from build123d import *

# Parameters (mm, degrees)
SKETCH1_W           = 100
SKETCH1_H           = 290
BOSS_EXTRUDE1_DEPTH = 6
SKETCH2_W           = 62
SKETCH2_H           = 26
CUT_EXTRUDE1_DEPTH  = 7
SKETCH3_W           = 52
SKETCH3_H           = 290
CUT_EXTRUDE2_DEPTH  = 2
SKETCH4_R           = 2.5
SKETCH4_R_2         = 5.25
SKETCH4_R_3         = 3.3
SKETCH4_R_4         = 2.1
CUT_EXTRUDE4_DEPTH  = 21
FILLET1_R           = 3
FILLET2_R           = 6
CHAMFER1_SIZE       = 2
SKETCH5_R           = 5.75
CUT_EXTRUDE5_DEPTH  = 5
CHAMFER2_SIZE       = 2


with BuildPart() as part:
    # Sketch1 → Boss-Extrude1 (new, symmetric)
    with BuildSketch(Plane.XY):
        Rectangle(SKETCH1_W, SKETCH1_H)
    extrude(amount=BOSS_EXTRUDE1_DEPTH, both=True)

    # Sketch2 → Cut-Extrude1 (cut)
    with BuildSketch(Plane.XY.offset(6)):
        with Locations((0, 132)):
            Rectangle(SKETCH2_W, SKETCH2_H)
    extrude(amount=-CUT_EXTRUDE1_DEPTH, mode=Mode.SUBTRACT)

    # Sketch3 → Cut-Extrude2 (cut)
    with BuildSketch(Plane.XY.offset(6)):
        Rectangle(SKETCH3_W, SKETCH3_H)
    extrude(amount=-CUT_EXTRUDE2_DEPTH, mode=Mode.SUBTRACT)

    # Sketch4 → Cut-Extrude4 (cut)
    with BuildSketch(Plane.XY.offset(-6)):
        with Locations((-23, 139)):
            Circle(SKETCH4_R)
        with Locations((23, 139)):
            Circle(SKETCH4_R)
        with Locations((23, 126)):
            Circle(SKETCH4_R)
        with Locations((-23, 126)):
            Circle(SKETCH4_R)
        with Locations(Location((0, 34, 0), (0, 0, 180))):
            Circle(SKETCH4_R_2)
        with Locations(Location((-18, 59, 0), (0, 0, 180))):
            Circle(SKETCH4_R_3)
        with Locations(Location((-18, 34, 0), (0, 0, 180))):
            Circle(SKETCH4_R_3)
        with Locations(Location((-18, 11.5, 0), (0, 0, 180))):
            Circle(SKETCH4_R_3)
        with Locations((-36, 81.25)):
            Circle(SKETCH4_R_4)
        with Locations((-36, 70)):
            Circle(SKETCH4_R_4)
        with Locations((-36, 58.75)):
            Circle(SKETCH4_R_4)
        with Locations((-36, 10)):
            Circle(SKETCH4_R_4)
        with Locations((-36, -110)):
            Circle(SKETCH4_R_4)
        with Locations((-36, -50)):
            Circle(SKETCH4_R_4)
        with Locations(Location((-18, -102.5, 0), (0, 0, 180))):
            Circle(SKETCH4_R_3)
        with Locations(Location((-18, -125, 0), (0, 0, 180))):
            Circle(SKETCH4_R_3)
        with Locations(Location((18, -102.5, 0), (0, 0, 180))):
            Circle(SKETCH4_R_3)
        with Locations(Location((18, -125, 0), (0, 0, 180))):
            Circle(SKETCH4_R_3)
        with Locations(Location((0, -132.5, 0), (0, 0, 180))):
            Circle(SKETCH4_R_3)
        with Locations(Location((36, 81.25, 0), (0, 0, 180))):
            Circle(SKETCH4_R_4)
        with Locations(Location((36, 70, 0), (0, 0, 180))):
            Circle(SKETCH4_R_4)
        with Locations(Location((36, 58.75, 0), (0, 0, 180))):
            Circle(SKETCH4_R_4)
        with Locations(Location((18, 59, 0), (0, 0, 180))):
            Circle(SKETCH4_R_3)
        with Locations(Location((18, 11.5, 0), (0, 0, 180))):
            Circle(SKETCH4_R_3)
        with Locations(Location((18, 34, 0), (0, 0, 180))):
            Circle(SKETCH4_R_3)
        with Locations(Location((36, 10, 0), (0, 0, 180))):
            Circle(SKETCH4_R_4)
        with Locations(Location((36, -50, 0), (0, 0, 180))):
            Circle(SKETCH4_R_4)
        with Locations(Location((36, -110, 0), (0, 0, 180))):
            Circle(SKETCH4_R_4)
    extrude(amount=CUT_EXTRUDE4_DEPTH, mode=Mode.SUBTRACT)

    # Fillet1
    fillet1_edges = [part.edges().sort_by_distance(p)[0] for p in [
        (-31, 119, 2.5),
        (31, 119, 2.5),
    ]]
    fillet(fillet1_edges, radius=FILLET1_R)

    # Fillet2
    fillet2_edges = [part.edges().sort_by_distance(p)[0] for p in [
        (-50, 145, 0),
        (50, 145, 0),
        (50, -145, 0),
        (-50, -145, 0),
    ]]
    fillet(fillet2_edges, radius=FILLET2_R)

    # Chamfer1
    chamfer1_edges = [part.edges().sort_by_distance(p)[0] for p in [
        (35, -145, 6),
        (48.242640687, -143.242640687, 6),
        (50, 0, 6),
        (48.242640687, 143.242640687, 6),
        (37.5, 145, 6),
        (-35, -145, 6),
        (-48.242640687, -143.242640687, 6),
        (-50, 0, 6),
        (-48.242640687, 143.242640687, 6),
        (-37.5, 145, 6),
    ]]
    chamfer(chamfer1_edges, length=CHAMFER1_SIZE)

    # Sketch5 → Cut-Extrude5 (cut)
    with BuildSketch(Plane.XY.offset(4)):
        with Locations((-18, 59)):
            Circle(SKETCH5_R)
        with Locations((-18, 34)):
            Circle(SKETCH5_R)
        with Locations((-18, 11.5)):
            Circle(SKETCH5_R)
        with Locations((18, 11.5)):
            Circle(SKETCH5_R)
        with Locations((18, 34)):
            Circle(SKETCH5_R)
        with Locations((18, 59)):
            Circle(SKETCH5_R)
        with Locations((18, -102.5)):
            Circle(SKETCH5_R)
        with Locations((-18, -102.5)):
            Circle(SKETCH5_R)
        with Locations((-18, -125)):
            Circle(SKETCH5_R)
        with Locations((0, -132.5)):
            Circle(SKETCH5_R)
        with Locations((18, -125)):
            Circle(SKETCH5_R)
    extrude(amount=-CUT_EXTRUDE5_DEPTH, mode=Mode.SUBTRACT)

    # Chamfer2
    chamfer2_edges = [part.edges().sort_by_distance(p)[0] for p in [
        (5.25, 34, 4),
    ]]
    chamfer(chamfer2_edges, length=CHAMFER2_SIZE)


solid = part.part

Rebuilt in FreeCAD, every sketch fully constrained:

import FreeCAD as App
import Part
import Sketcher


def edges_at(feature, points):
    """Names of the edges that pass closest to the given points."""
    edges = feature.Shape.Edges
    near = lambda p: min(range(len(edges)), key=lambda i: edges[i].distToShape(Part.Vertex(*p))[0])
    return sorted({f"Edge{near(p) + 1}" for p in points})

doc = App.newDocument("Part")
params = doc.addObject("Spreadsheet::Sheet", "Params")
for row, (alias, value) in enumerate([
    ("sketch1_width", "100 mm"),
    ("sketch1_height", "290 mm"),
    ("pad1_length", "12 mm"),
    ("sketch2_width", "62 mm"),
    ("sketch2_height", "26 mm"),
    ("pocket1_length", "7 mm"),
    ("sketch3_width", "52 mm"),
    ("sketch3_height", "290 mm"),
    ("pocket2_length", "2 mm"),
    ("sketch4_diameter", "5 mm"),
    ("sketch4_diameter2", "10.5 mm"),
    ("sketch4_diameter3", "6.6 mm"),
    ("sketch4_diameter4", "4.2 mm"),
    ("pocket3_length", "21 mm"),
    ("fillet_radius", "3 mm"),
    ("fillet2_radius", "6 mm"),
    ("chamfer_size", "2 mm"),
    ("sketch5_diameter", "11.5 mm"),
    ("pocket4_length", "5 mm"),
    ("chamfer2_size", "2 mm"),
], start=1):
    params.set(f"A{row}", alias)
    params.set(f"B{row}", "=" + value)
    params.setAlias(f"B{row}", alias)

body = doc.addObject("PartDesign::Body", "Body")

# Sketch on XY plane
sketch1 = doc.addObject("Sketcher::SketchObject", "Sketch")
body.addObject(sketch1)
sketch1.AttachmentSupport = (doc.XY_Plane, [""])
sketch1.MapMode = "FlatFace"
sketch1.addGeometry([
    Part.LineSegment(App.Vector(-50, 145, 0), App.Vector(-50, -145, 0)),
    Part.LineSegment(App.Vector(-50, -145, 0), App.Vector(50, -145, 0)),
    Part.LineSegment(App.Vector(50, -145, 0), App.Vector(50, 145, 0)),
    Part.LineSegment(App.Vector(50, 145, 0), App.Vector(-50, 145, 0)),
], False)
sketch1.addConstraint([
    Sketcher.Constraint("Coincident", 0, 2, 1, 1),
    Sketcher.Constraint("Coincident", 1, 2, 2, 1),
    Sketcher.Constraint("Coincident", 2, 2, 3, 1),
    Sketcher.Constraint("Coincident", 3, 2, 0, 1),
    Sketcher.Constraint("Vertical", 0),
    Sketcher.Constraint("Horizontal", 1),
    Sketcher.Constraint("Vertical", 2),
    Sketcher.Constraint("Horizontal", 3),
    Sketcher.Constraint("Symmetric", 0, 2, 2, 2, -1, 1),
    Sketcher.Constraint("DistanceX", 1, 1, 1, 2, 100.0),
    Sketcher.Constraint("DistanceY", 0, 2, 0, 1, 290.0),
])
sketch1.setExpression("Constraints[9]", "Params.sketch1_width")
sketch1.setExpression("Constraints[10]", "Params.sketch1_height")
pad1 = doc.addObject("PartDesign::Pad", "Pad")
body.addObject(pad1)
pad1.Profile = sketch1
pad1.setExpression("Length", "Params.pad1_length")
pad1.Midplane = True

# Sketch on XY plane
sketch2 = doc.addObject("Sketcher::SketchObject", "Sketch001")
body.addObject(sketch2)
sketch2.AttachmentSupport = (doc.XY_Plane, [""])
sketch2.MapMode = "FlatFace"
sketch2.AttachmentOffset = App.Placement(App.Vector(0, 0, 6), App.Rotation())
sketch2.addGeometry([
    Part.LineSegment(App.Vector(-31, 145, 0), App.Vector(-31, 119, 0)),
    Part.LineSegment(App.Vector(-31, 119, 0), App.Vector(31, 119, 0)),
    Part.LineSegment(App.Vector(31, 119, 0), App.Vector(31, 145, 0)),
    Part.LineSegment(App.Vector(31, 145, 0), App.Vector(-31, 145, 0)),
], False)
sketch2.addConstraint([
    Sketcher.Constraint("Coincident", 0, 2, 1, 1),
    Sketcher.Constraint("Coincident", 1, 2, 2, 1),
    Sketcher.Constraint("Coincident", 2, 2, 3, 1),
    Sketcher.Constraint("Coincident", 3, 2, 0, 1),
    Sketcher.Constraint("Vertical", 0),
    Sketcher.Constraint("Horizontal", 1),
    Sketcher.Constraint("Vertical", 2),
    Sketcher.Constraint("Horizontal", 3),
    Sketcher.Constraint("DistanceX", 1, 1, 1, 2, 62.0),
    Sketcher.Constraint("DistanceY", 0, 2, 0, 1, 26.0),
    Sketcher.Constraint("DistanceX", 0, 2, -1, 1, 31.0),
    Sketcher.Constraint("DistanceY", -1, 1, 0, 2, 119.0),
])
sketch2.setExpression("Constraints[8]", "Params.sketch2_width")
sketch2.setExpression("Constraints[9]", "Params.sketch2_height")
pocket1 = doc.addObject("PartDesign::Pocket", "Pocket")
body.addObject(pocket1)
pocket1.Profile = sketch2
pocket1.setExpression("Length", "Params.pocket1_length")

# Sketch on XY plane
sketch3 = doc.addObject("Sketcher::SketchObject", "Sketch002")
body.addObject(sketch3)
sketch3.AttachmentSupport = (doc.XY_Plane, [""])
sketch3.MapMode = "FlatFace"
sketch3.AttachmentOffset = App.Placement(App.Vector(0, 0, 6), App.Rotation())
sketch3.addGeometry([
    Part.LineSegment(App.Vector(-26, 145, 0), App.Vector(-26, -145, 0)),
    Part.LineSegment(App.Vector(-26, -145, 0), App.Vector(26, -145, 0)),
    Part.LineSegment(App.Vector(26, -145, 0), App.Vector(26, 145, 0)),
    Part.LineSegment(App.Vector(26, 145, 0), App.Vector(-26, 145, 0)),
], False)
sketch3.addConstraint([
    Sketcher.Constraint("Coincident", 0, 2, 1, 1),
    Sketcher.Constraint("Coincident", 1, 2, 2, 1),
    Sketcher.Constraint("Coincident", 2, 2, 3, 1),
    Sketcher.Constraint("Coincident", 3, 2, 0, 1),
    Sketcher.Constraint("Vertical", 0),
    Sketcher.Constraint("Horizontal", 1),
    Sketcher.Constraint("Vertical", 2),
    Sketcher.Constraint("Horizontal", 3),
    Sketcher.Constraint("Symmetric", 0, 2, 2, 2, -1, 1),
    Sketcher.Constraint("DistanceX", 1, 1, 1, 2, 52.0),
    Sketcher.Constraint("DistanceY", 0, 2, 0, 1, 290.0),
])
sketch3.setExpression("Constraints[9]", "Params.sketch3_width")
sketch3.setExpression("Constraints[10]", "Params.sketch3_height")
pocket2 = doc.addObject("PartDesign::Pocket", "Pocket001")
body.addObject(pocket2)
pocket2.Profile = sketch3
pocket2.setExpression("Length", "Params.pocket2_length")

# Sketch on XY plane
sketch4 = doc.addObject("Sketcher::SketchObject", "Sketch003")
body.addObject(sketch4)
sketch4.AttachmentSupport = (doc.XY_Plane, [""])
sketch4.MapMode = "FlatFace"
sketch4.AttachmentOffset = App.Placement(App.Vector(0, 0, -6), App.Rotation())
sketch4.addGeometry([
    Part.Circle(App.Vector(-23, 139, 0), App.Vector(0, 0, 1), 2.5),  # 0
    Part.Circle(App.Vector(23, 139, 0), App.Vector(0, 0, 1), 2.5),  # 1
    Part.Circle(App.Vector(23, 126, 0), App.Vector(0, 0, 1), 2.5),  # 2
    Part.Circle(App.Vector(-23, 126, 0), App.Vector(0, 0, 1), 2.5),  # 3
    Part.Circle(App.Vector(0, 34, 0), App.Vector(0, 0, 1), 5.2),  # 4
    Part.Circle(App.Vector(-18, 59, 0), App.Vector(0, 0, 1), 3.3),  # 5
    Part.Circle(App.Vector(-18, 34, 0), App.Vector(0, 0, 1), 3.3),  # 6
    Part.Circle(App.Vector(-18, 11.5, 0), App.Vector(0, 0, 1), 3.3),  # 7
    Part.Circle(App.Vector(-36, 81.2, 0), App.Vector(0, 0, 1), 2.1),  # 8
    Part.Circle(App.Vector(-36, 70, 0), App.Vector(0, 0, 1), 2.1),  # 9
    Part.Circle(App.Vector(-36, 58.8, 0), App.Vector(0, 0, 1), 2.1),  # 10
    Part.Circle(App.Vector(-36, 10, 0), App.Vector(0, 0, 1), 2.1),  # 11
    Part.Circle(App.Vector(-36, -110, 0), App.Vector(0, 0, 1), 2.1),  # 12
    Part.Circle(App.Vector(-36, -50, 0), App.Vector(0, 0, 1), 2.1),  # 13
    Part.Circle(App.Vector(-18, -102.5, 0), App.Vector(0, 0, 1), 3.3),  # 14
    Part.Circle(App.Vector(-18, -125, 0), App.Vector(0, 0, 1), 3.3),  # 15
    Part.Circle(App.Vector(18, -102.5, 0), App.Vector(0, 0, 1), 3.3),  # 16
    Part.Circle(App.Vector(18, -125, 0), App.Vector(0, 0, 1), 3.3),  # 17
    Part.Circle(App.Vector(0, -132.5, 0), App.Vector(0, 0, 1), 3.3),  # 18
    Part.Circle(App.Vector(36, 81.2, 0), App.Vector(0, 0, 1), 2.1),  # 19
    Part.Circle(App.Vector(36, 70, 0), App.Vector(0, 0, 1), 2.1),  # 20
    Part.Circle(App.Vector(36, 58.8, 0), App.Vector(0, 0, 1), 2.1),  # 21
    Part.Circle(App.Vector(18, 59, 0), App.Vector(0, 0, 1), 3.3),  # 22
    Part.Circle(App.Vector(18, 11.5, 0), App.Vector(0, 0, 1), 3.3),  # 23
    Part.Circle(App.Vector(18, 34, 0), App.Vector(0, 0, 1), 3.3),  # 24
    Part.Circle(App.Vector(36, 10, 0), App.Vector(0, 0, 1), 2.1),  # 25
    Part.Circle(App.Vector(36, -50, 0), App.Vector(0, 0, 1), 2.1),  # 26
    Part.Circle(App.Vector(36, -110, 0), App.Vector(0, 0, 1), 2.1),  # 27
], False)
sketch4.addConstraint([
    Sketcher.Constraint("Equal", 0, 1),
    Sketcher.Constraint("Equal", 1, 2),
    Sketcher.Constraint("Equal", 2, 3),
    Sketcher.Constraint("Equal", 5, 6),
    Sketcher.Constraint("Equal", 6, 7),
    Sketcher.Constraint("Equal", 8, 9),
    Sketcher.Constraint("Equal", 9, 10),
    Sketcher.Constraint("Equal", 10, 11),
    Sketcher.Constraint("Equal", 11, 12),
    Sketcher.Constraint("Equal", 12, 13),
    Sketcher.Constraint("Equal", 7, 14),
    Sketcher.Constraint("Equal", 14, 15),
    Sketcher.Constraint("Equal", 15, 16),
    Sketcher.Constraint("Equal", 16, 17),
    Sketcher.Constraint("Equal", 17, 18),
    Sketcher.Constraint("Equal", 13, 19),
    Sketcher.Constraint("Equal", 19, 20),
    Sketcher.Constraint("Equal", 20, 21),
    Sketcher.Constraint("Equal", 18, 22),
    Sketcher.Constraint("Equal", 22, 23),
    Sketcher.Constraint("Equal", 23, 24),
    Sketcher.Constraint("Equal", 21, 25),
    Sketcher.Constraint("Equal", 25, 26),
    Sketcher.Constraint("Equal", 26, 27),
    Sketcher.Constraint("Symmetric", 0, 3, 1, 3, -2),
    Sketcher.Constraint("Symmetric", 2, 3, 3, 3, -2),
    Sketcher.Constraint("Symmetric", 14, 3, 16, 3, -2),
    Sketcher.Constraint("Symmetric", 15, 3, 17, 3, -2),
    Sketcher.Constraint("Symmetric", 8, 3, 19, 3, -2),
    Sketcher.Constraint("Symmetric", 9, 3, 20, 3, -2),
    Sketcher.Constraint("Symmetric", 10, 3, 21, 3, -2),
    Sketcher.Constraint("Symmetric", 5, 3, 22, 3, -2),
    Sketcher.Constraint("Symmetric", 7, 3, 23, 3, -2),
    Sketcher.Constraint("Symmetric", 6, 3, 24, 3, -2),
    Sketcher.Constraint("Symmetric", 11, 3, 25, 3, -2),
    Sketcher.Constraint("Symmetric", 13, 3, 26, 3, -2),
    Sketcher.Constraint("Symmetric", 12, 3, 27, 3, -2),
    Sketcher.Constraint("PointOnObject", 4, 3, -2),
    Sketcher.Constraint("PointOnObject", 18, 3, -2),
    Sketcher.Constraint("Horizontal", 4, 3, 6, 3),
    Sketcher.Constraint("Vertical", 1, 3, 2, 3),
    Sketcher.Constraint("Vertical", 5, 3, 6, 3),
    Sketcher.Constraint("Vertical", 6, 3, 7, 3),
    Sketcher.Constraint("Vertical", 8, 3, 9, 3),
    Sketcher.Constraint("Vertical", 9, 3, 10, 3),
    Sketcher.Constraint("Vertical", 10, 3, 11, 3),
    Sketcher.Constraint("Vertical", 11, 3, 12, 3),
    Sketcher.Constraint("Vertical", 12, 3, 13, 3),
    Sketcher.Constraint("Vertical", 7, 3, 14, 3),
    Sketcher.Constraint("Vertical", 14, 3, 15, 3),
    Sketcher.Constraint("Diameter", 0, 5.0),
    Sketcher.Constraint("Diameter", 4, 10.5),
    Sketcher.Constraint("Diameter", 5, 6.6),
    Sketcher.Constraint("Diameter", 8, 4.2),
    Sketcher.Constraint("DistanceX", 0, 3, -1, 1, 23.0),
    Sketcher.Constraint("DistanceY", -1, 1, 0, 3, 139.0),
    Sketcher.Constraint("DistanceY", -1, 1, 2, 3, 126.0),
    Sketcher.Constraint("DistanceY", -1, 1, 4, 3, 34.0),
    Sketcher.Constraint("DistanceX", 5, 3, -1, 1, 18.0),
    Sketcher.Constraint("DistanceY", -1, 1, 5, 3, 59.0),
    Sketcher.Constraint("DistanceX", 8, 3, -1, 1, 36.0),
    Sketcher.Constraint("DistanceY", -1, 1, 9, 3, 70.0),
    Sketcher.Constraint("DistanceY", -1, 1, 11, 3, 10.0),
    Sketcher.Constraint("DistanceY", 12, 3, -1, 1, 110.0),
    Sketcher.Constraint("DistanceY", 13, 3, -1, 1, 50.0),
    Sketcher.Constraint("DistanceY", 15, 3, -1, 1, 125.0),
    Sketcher.Constraint("DistanceY", 14, 3, 7, 3, 114.0),
    Sketcher.Constraint("DistanceY", 18, 3, 14, 3, 30.0),
    Sketcher.Constraint("DistanceY", -1, 1, 7, 3, 11.5),
    Sketcher.Constraint("DistanceY", 10, 3, 8, 3, 22.5),
    Sketcher.Constraint("DistanceY", -1, 1, 8, 3, 81.25),
])
sketch4.setExpression("Constraints[50]", "Params.sketch4_diameter")
sketch4.setExpression("Constraints[51]", "Params.sketch4_diameter2")
sketch4.setExpression("Constraints[52]", "Params.sketch4_diameter3")
sketch4.setExpression("Constraints[53]", "Params.sketch4_diameter4")
pocket3 = doc.addObject("PartDesign::Pocket", "Pocket002")
body.addObject(pocket3)
pocket3.Profile = sketch4
pocket3.setExpression("Length", "Params.pocket3_length")
pocket3.Reversed = True
doc.recompute()

fillet = doc.addObject("PartDesign::Fillet", "Fillet")
body.addObject(fillet)
fillet.Base = (pocket3, edges_at(pocket3, [(-31, 119, 2.5), (31, 119, 2.5)]))
fillet.setExpression("Radius", "Params.fillet_radius")
doc.recompute()

fillet2 = doc.addObject("PartDesign::Fillet", "Fillet001")
body.addObject(fillet2)
fillet2.Base = (fillet, edges_at(fillet, [
    (-50, 145, 0),
    (50, 145, 0),
    (50, -145, 0),
    (-50, -145, 0),
]))
fillet2.setExpression("Radius", "Params.fillet2_radius")
doc.recompute()

chamfer = doc.addObject("PartDesign::Chamfer", "Chamfer")
body.addObject(chamfer)
chamfer.Base = (fillet2, edges_at(fillet2, [
    (35, -145, 6),
    (48.243, -143.243, 6),
    (50, 0, 6),
    (48.243, 143.243, 6),
    (37.5, 145, 6),
    (-35, -145, 6),
    (-48.243, -143.243, 6),
    (-50, 0, 6),
    (-48.243, 143.243, 6),
    (-37.5, 145, 6),
]))
chamfer.setExpression("Size", "Params.chamfer_size")

# Sketch on XY plane
sketch5 = doc.addObject("Sketcher::SketchObject", "Sketch004")
body.addObject(sketch5)
sketch5.AttachmentSupport = (doc.XY_Plane, [""])
sketch5.MapMode = "FlatFace"
sketch5.AttachmentOffset = App.Placement(App.Vector(0, 0, 4), App.Rotation())
sketch5.addGeometry([
    Part.Circle(App.Vector(-18, 59, 0), App.Vector(0, 0, 1), 6),  # 0
    Part.Circle(App.Vector(-18, 34, 0), App.Vector(0, 0, 1), 6),  # 1
    Part.Circle(App.Vector(-18, 12, 0), App.Vector(0, 0, 1), 6),  # 2
    Part.Circle(App.Vector(18, 12, 0), App.Vector(0, 0, 1), 6),  # 3
    Part.Circle(App.Vector(18, 34, 0), App.Vector(0, 0, 1), 6),  # 4
    Part.Circle(App.Vector(18, 59, 0), App.Vector(0, 0, 1), 6),  # 5
    Part.Circle(App.Vector(18, -102, 0), App.Vector(0, 0, 1), 6),  # 6
    Part.Circle(App.Vector(-18, -102, 0), App.Vector(0, 0, 1), 6),  # 7
    Part.Circle(App.Vector(-18, -125, 0), App.Vector(0, 0, 1), 6),  # 8
    Part.Circle(App.Vector(0, -132, 0), App.Vector(0, 0, 1), 6),  # 9
    Part.Circle(App.Vector(18, -125, 0), App.Vector(0, 0, 1), 6),  # 10
], False)
sketch5.addConstraint([
    Sketcher.Constraint("Equal", 0, 1),
    Sketcher.Constraint("Equal", 1, 2),
    Sketcher.Constraint("Equal", 2, 3),
    Sketcher.Constraint("Equal", 3, 4),
    Sketcher.Constraint("Equal", 4, 5),
    Sketcher.Constraint("Equal", 5, 6),
    Sketcher.Constraint("Equal", 6, 7),
    Sketcher.Constraint("Equal", 7, 8),
    Sketcher.Constraint("Equal", 8, 9),
    Sketcher.Constraint("Equal", 9, 10),
    Sketcher.Constraint("Symmetric", 2, 3, 3, 3, -2),
    Sketcher.Constraint("Symmetric", 1, 3, 4, 3, -2),
    Sketcher.Constraint("Symmetric", 0, 3, 5, 3, -2),
    Sketcher.Constraint("Symmetric", 6, 3, 7, 3, -2),
    Sketcher.Constraint("Symmetric", 8, 3, 10, 3, -2),
    Sketcher.Constraint("PointOnObject", 9, 3, -2),
    Sketcher.Constraint("Vertical", 0, 3, 1, 3),
    Sketcher.Constraint("Vertical", 1, 3, 2, 3),
    Sketcher.Constraint("Vertical", 5, 3, 6, 3),
    Sketcher.Constraint("Vertical", 7, 3, 8, 3),
    Sketcher.Constraint("Diameter", 0, 11.5),
    Sketcher.Constraint("DistanceX", 0, 3, -1, 1, 18.0),
    Sketcher.Constraint("DistanceY", -1, 1, 0, 3, 59.0),
    Sketcher.Constraint("DistanceY", -1, 1, 1, 3, 34.0),
    Sketcher.Constraint("DistanceY", 8, 3, -1, 1, 125.0),
    Sketcher.Constraint("DistanceY", 6, 3, 3, 3, 114.0),
    Sketcher.Constraint("DistanceY", 9, 3, 6, 3, 30.0),
    Sketcher.Constraint("DistanceY", -1, 1, 2, 3, 11.5),
])
sketch5.setExpression("Constraints[20]", "Params.sketch5_diameter")
pocket4 = doc.addObject("PartDesign::Pocket", "Pocket003")
body.addObject(pocket4)
pocket4.Profile = sketch5
pocket4.setExpression("Length", "Params.pocket4_length")
doc.recompute()

chamfer2 = doc.addObject("PartDesign::Chamfer", "Chamfer001")
body.addObject(chamfer2)
chamfer2.Base = (pocket4, edges_at(pocket4, [(5.25, 34, 4)]))
chamfer2.setExpression("Size", "Params.chamfer2_size")

doc.recompute()
